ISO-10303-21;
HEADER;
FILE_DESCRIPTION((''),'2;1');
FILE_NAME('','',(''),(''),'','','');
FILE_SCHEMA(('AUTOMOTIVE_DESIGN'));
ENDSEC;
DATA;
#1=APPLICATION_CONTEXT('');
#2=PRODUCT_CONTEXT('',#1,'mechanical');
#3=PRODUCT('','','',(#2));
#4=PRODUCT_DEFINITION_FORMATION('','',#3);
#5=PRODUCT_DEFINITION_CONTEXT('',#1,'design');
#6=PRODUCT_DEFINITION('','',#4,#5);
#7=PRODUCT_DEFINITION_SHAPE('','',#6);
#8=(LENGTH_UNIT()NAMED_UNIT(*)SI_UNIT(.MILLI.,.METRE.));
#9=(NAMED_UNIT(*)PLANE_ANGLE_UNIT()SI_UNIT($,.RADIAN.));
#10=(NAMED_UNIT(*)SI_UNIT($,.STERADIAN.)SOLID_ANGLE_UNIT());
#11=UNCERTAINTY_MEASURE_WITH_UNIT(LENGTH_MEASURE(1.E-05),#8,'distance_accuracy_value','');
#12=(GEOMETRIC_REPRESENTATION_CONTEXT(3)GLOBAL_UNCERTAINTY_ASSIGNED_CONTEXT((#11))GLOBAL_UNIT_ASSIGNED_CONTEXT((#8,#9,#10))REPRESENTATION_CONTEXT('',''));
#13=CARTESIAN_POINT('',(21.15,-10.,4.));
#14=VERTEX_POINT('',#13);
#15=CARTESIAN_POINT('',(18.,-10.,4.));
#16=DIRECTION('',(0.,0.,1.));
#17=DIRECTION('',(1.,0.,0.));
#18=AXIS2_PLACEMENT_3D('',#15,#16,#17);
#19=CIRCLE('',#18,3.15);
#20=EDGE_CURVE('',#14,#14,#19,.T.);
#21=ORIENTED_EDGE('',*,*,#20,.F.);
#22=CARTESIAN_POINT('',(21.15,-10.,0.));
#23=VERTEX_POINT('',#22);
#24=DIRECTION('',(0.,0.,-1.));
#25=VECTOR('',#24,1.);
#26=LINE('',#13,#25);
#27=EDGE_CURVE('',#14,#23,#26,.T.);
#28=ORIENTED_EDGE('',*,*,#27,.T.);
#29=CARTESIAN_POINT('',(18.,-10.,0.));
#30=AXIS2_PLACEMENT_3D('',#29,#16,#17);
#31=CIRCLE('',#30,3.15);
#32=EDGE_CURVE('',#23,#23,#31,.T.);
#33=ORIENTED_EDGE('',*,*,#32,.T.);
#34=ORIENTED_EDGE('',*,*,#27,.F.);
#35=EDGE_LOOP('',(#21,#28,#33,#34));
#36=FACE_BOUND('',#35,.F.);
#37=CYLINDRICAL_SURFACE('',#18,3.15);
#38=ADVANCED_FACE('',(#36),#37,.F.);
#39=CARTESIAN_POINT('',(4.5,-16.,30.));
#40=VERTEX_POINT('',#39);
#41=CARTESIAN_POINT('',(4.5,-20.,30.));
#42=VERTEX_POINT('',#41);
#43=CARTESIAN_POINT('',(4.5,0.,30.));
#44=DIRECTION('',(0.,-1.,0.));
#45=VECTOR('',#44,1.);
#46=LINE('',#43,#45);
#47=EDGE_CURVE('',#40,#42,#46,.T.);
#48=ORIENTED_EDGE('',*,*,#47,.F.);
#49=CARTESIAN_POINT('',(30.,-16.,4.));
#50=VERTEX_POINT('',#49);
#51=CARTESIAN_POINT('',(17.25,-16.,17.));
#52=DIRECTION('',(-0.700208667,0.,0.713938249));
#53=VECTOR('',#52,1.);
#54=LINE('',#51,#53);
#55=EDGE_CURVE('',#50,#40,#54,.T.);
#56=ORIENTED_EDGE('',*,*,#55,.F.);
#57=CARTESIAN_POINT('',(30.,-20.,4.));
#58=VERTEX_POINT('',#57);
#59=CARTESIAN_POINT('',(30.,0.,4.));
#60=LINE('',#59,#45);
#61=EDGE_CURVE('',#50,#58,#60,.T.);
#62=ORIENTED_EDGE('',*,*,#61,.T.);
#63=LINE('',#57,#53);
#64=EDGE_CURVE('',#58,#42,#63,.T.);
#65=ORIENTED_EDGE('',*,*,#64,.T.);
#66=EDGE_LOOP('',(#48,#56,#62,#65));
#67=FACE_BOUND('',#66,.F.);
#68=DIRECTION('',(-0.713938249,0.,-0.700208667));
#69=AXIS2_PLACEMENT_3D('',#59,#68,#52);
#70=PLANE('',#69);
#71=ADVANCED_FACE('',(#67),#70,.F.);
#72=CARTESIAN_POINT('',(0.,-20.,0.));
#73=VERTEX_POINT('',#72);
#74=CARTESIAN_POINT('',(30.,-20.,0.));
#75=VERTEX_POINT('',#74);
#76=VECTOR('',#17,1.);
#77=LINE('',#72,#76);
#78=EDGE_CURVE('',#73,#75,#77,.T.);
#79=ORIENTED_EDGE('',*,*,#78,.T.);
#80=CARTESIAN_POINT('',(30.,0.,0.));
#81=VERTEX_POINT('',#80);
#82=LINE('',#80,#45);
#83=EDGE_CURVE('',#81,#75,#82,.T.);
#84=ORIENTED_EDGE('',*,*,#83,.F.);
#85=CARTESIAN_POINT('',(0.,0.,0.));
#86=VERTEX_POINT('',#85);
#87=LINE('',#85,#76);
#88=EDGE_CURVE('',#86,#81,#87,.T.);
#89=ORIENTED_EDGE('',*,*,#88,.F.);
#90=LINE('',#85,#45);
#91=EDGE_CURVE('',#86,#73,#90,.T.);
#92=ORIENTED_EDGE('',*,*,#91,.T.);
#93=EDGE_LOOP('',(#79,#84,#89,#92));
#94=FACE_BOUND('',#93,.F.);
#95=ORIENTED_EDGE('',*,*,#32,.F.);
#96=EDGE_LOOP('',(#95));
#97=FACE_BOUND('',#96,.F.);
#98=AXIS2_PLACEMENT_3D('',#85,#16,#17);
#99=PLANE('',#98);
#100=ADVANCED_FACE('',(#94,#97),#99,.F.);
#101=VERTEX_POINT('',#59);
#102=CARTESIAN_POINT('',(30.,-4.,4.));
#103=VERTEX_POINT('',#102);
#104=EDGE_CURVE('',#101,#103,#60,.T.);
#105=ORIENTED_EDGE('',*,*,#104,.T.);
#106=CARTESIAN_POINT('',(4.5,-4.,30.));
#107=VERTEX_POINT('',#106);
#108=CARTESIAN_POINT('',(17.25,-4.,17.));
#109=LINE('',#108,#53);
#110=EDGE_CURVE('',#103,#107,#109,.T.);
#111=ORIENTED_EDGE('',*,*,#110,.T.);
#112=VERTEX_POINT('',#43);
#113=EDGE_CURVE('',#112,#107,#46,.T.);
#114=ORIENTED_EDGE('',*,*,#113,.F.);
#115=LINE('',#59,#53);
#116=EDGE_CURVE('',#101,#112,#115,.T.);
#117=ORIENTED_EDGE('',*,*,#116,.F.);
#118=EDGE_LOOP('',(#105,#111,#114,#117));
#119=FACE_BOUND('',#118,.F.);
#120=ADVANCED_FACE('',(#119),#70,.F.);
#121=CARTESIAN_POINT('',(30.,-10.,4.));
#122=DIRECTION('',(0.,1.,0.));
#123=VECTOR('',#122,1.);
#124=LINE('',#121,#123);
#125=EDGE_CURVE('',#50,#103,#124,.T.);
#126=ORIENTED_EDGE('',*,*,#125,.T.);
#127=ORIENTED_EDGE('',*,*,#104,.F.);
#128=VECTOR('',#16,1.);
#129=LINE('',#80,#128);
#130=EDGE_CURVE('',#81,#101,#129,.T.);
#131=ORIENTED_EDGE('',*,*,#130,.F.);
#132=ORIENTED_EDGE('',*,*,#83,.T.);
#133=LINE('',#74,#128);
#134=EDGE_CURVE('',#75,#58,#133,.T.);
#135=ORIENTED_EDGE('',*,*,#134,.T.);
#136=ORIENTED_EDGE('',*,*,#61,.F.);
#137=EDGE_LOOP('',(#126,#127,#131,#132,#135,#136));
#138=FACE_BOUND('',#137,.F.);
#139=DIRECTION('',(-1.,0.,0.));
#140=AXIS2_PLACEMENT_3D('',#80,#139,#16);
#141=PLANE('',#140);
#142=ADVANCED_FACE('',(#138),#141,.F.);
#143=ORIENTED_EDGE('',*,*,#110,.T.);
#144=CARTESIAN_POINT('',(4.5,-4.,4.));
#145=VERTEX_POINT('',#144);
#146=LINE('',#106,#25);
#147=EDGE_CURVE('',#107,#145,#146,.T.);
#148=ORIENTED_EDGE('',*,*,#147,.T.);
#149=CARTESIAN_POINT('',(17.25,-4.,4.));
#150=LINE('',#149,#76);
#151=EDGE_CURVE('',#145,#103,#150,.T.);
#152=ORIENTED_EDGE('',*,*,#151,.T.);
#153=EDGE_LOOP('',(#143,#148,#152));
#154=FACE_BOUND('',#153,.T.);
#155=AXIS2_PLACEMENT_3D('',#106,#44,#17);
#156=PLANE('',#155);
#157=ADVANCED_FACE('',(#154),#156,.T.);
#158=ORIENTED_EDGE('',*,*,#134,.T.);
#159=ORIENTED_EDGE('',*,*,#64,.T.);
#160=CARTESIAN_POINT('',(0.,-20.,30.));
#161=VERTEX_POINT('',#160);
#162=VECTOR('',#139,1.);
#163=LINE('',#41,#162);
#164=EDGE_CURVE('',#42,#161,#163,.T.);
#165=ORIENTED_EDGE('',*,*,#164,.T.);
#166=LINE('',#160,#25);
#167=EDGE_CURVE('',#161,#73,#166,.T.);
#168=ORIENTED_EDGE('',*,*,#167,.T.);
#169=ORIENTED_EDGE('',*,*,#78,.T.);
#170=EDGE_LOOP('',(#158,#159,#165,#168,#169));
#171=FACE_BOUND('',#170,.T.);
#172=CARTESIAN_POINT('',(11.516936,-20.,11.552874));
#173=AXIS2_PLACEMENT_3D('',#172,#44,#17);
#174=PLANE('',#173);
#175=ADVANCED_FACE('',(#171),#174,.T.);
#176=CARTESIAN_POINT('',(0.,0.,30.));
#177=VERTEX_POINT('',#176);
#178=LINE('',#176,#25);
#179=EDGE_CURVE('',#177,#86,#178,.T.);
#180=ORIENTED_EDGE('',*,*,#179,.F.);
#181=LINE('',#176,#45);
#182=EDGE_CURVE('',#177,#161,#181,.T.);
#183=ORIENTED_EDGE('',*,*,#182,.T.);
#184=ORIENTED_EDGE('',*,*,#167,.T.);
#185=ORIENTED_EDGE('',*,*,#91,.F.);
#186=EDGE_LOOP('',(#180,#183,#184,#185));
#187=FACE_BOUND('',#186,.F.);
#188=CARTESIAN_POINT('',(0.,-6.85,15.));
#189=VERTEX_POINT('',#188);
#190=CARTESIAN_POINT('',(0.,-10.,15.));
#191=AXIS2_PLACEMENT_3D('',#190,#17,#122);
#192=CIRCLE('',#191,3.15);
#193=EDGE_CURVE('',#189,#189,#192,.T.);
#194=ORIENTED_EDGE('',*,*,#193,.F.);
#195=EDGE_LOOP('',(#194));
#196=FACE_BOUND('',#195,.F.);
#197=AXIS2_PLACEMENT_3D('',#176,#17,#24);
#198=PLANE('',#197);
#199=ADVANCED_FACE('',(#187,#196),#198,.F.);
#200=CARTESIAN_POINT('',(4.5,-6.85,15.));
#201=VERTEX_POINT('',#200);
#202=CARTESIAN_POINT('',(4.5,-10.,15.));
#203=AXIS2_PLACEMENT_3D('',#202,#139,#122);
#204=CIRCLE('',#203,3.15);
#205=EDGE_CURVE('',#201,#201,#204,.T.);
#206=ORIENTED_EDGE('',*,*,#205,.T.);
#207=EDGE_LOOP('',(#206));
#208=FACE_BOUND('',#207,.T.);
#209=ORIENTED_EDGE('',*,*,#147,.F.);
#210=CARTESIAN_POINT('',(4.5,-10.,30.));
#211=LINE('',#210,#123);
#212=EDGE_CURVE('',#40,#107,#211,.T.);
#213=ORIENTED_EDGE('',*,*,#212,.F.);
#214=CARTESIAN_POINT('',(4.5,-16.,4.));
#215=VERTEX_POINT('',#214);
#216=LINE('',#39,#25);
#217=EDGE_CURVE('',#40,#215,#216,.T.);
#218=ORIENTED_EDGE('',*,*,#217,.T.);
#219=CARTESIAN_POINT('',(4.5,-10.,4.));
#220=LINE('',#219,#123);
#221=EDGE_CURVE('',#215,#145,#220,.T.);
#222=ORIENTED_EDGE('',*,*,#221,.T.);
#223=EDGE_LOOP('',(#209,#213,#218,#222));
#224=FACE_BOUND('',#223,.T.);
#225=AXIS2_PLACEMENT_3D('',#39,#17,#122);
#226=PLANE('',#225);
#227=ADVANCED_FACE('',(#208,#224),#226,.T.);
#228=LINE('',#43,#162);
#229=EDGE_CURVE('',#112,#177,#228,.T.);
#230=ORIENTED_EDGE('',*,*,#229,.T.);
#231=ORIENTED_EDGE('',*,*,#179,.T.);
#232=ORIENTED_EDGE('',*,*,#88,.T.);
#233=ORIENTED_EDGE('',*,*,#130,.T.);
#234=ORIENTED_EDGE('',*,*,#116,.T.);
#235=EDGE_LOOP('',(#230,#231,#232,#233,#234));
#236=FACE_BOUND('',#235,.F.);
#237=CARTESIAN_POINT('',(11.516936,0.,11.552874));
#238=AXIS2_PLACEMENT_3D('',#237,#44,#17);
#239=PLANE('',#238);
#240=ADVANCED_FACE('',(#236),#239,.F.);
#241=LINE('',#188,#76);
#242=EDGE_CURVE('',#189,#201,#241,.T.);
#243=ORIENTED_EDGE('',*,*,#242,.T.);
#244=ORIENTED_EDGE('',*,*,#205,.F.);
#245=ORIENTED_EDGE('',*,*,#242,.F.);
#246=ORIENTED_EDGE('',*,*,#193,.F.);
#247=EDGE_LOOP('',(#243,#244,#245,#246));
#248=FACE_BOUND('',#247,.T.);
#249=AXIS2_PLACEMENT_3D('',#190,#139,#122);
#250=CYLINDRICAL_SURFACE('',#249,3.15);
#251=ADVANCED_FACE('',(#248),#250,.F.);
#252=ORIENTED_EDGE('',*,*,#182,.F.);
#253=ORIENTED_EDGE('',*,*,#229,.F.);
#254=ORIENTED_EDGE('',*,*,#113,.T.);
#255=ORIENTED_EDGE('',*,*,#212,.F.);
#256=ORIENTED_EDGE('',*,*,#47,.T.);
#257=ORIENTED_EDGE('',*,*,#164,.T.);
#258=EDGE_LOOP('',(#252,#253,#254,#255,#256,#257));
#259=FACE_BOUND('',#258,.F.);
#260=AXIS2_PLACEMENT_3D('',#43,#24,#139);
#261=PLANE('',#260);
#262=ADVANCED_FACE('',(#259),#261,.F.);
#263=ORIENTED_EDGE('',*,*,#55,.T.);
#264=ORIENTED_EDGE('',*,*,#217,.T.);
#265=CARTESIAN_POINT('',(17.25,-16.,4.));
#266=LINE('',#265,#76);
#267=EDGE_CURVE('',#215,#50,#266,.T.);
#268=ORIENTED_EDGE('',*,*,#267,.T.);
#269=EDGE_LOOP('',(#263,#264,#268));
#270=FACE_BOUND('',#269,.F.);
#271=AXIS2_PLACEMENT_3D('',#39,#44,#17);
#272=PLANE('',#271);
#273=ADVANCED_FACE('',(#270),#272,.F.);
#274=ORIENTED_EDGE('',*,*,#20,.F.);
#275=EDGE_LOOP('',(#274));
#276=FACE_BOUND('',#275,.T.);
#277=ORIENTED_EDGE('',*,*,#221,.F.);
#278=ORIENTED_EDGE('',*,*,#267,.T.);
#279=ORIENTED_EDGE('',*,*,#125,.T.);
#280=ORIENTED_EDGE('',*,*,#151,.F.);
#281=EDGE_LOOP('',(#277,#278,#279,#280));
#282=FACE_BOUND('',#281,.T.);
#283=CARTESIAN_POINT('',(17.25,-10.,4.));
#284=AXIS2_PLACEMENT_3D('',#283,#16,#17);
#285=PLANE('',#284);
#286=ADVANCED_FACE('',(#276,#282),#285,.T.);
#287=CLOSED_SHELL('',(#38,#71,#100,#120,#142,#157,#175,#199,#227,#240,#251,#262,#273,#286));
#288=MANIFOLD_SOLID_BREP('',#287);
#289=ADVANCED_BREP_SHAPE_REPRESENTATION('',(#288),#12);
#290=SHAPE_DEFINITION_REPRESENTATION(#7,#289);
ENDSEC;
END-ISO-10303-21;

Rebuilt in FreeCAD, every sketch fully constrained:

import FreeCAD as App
import Part
import Sketcher
from FreeCAD import Vector
Q = App.Units.Quantity

doc = App.newDocument("Part")
body = doc.addObject("PartDesign::Body", "Body")

sketch1 = body.newObject("Sketcher::SketchObject", "Sketch")
sketch1.AttachmentSupport = (doc.getObject("XZ_Plane"), [""])
sketch1.MapMode = "FlatFace"
sketch1.addGeometry(Part.LineSegment(Vector(0, 30, 0), Vector(0, 0, 0)), False)
sketch1.addGeometry(Part.LineSegment(Vector(0, 0, 0), Vector(30, 0, 0)), False)
sketch1.addGeometry(Part.LineSegment(Vector(30, 0, 0), Vector(30, 4, 0)), False)
sketch1.addGeometry(Part.LineSegment(Vector(30, 4, 0), Vector(4.5, 30, 0)), False)
sketch1.addGeometry(Part.LineSegment(Vector(4.5, 30, 0), Vector(0, 30, 0)), False)
sketch1.addConstraint(Sketcher.Constraint("Coincident", 0, 2, 1, 1))
sketch1.addConstraint(Sketcher.Constraint("Coincident", 1, 2, 2, 1))
sketch1.addConstraint(Sketcher.Constraint("Coincident", 2, 2, 3, 1))
sketch1.addConstraint(Sketcher.Constraint("Coincident", 3, 2, 4, 1))
sketch1.addConstraint(Sketcher.Constraint("Coincident", 4, 2, 0, 1))
sketch1.addConstraint(Sketcher.Constraint("Vertical", 0))
sketch1.addConstraint(Sketcher.Constraint("Horizontal", 1))
sketch1.addConstraint(Sketcher.Constraint("Vertical", 2))
sketch1.addConstraint(Sketcher.Constraint("Horizontal", 4))
sketch1.addConstraint(Sketcher.Constraint("Coincident", 0, 2, -1, 1))
sketch1.addConstraint(Sketcher.Constraint("Equal", 1, 0))
sketch1.addConstraint(Sketcher.Constraint("DistanceX", 1, 1, 1, 2, Q("30 mm")))
sketch1.addConstraint(Sketcher.Constraint("DistanceY", 2, 1, 2, 2, Q("4 mm")))
sketch1.addConstraint(Sketcher.Constraint("DistanceX", 4, 2, 4, 1, Q("4.5 mm")))
pad1 = body.newObject("PartDesign::Pad", "Pad")
pad1.Profile = sketch1
pad1.Length = 20

sketch2 = body.newObject("Sketcher::SketchObject", "Sketch001")
sketch2.AttachmentSupport = (doc.getObject("XY_Plane"), [""])
sketch2.MapMode = "FlatFace"
sketch2.AttachmentOffset = App.Placement(Vector(0, 0, 30), App.Rotation())
sketch2.addGeometry(Part.LineSegment(Vector(4.5, -4, 0), Vector(4.5, -16, 0)), False)
sketch2.addGeometry(Part.LineSegment(Vector(4.5, -16, 0), Vector(30, -16, 0)), False)
sketch2.addGeometry(Part.LineSegment(Vector(30, -16, 0), Vector(30, -4, 0)), False)
sketch2.addGeometry(Part.LineSegment(Vector(30, -4, 0), Vector(4.5, -4, 0)), False)
sketch2.addConstraint(Sketcher.Constraint("Coincident", 0, 2, 1, 1))
sketch2.addConstraint(Sketcher.Constraint("Coincident", 1, 2, 2, 1))
sketch2.addConstraint(Sketcher.Constraint("Coincident", 2, 2, 3, 1))
sketch2.addConstraint(Sketcher.Constraint("Coincident", 3, 2, 0, 1))
sketch2.addConstraint(Sketcher.Constraint("Vertical", 0))
sketch2.addConstraint(Sketcher.Constraint("Horizontal", 1))
sketch2.addConstraint(Sketcher.Constraint("Vertical", 2))
sketch2.addConstraint(Sketcher.Constraint("Horizontal", 3))
sketch2.addConstraint(Sketcher.Constraint("DistanceY", 0, 2, 0, 1, Q("12 mm")))
sketch2.addConstraint(Sketcher.Constraint("DistanceX", 1, 1, 1, 2, Q("25.5 mm")))
sketch2.addConstraint(Sketcher.Constraint("DistanceY", 0, 2, -1, 1, Q("16 mm")))
sketch2.addConstraint(Sketcher.Constraint("DistanceX", -1, 1, 1, 2, Q("30 mm")))
pocket1 = body.newObject("PartDesign::Pocket", "Pocket")
pocket1.Profile = sketch2
pocket1.Length = 26

sketch3 = body.newObject("Sketcher::SketchObject", "Sketch002")
sketch3.AttachmentSupport = (doc.getObject("YZ_Plane"), [""])
sketch3.MapMode = "FlatFace"
sketch3.addGeometry(Part.Circle(Vector(-10, 15, 0), Vector(0, 0, 1), 3.15), False)
sketch3.addConstraint(Sketcher.Constraint("Diameter", 0, Q("6.3 mm")))
sketch3.addConstraint(Sketcher.Constraint("DistanceX", 0, 3, -1, 1, Q("10 mm")))
sketch3.addConstraint(Sketcher.Constraint("DistanceY", -1, 1, 0, 3, Q("15 mm")))
pocket2 = body.newObject("PartDesign::Pocket", "Pocket001")
pocket2.Profile = sketch3
pocket2.Length = 25
pocket2.Reversed = True

sketch4 = body.newObject("Sketcher::SketchObject", "Sketch003")
sketch4.AttachmentSupport = (doc.getObject("XY_Plane"), [""])
sketch4.MapMode = "FlatFace"
sketch4.AttachmentOffset = App.Placement(Vector(0, 0, 4), App.Rotation())
sketch4.addGeometry(Part.Circle(Vector(18, -10, 0), Vector(0, 0, 1), 3.15), False)
sketch4.addConstraint(Sketcher.Constraint("Diameter", 0, Q("6.3 mm")))
sketch4.addConstraint(Sketcher.Constraint("DistanceX", -1, 1, 0, 3, Q("18 mm")))
sketch4.addConstraint(Sketcher.Constraint("DistanceY", 0, 3, -1, 1, Q("10 mm")))
pocket3 = body.newObject("PartDesign::Pocket", "Pocket002")
pocket3.Profile = sketch4
pocket3.Length = 25

doc.recompute()
